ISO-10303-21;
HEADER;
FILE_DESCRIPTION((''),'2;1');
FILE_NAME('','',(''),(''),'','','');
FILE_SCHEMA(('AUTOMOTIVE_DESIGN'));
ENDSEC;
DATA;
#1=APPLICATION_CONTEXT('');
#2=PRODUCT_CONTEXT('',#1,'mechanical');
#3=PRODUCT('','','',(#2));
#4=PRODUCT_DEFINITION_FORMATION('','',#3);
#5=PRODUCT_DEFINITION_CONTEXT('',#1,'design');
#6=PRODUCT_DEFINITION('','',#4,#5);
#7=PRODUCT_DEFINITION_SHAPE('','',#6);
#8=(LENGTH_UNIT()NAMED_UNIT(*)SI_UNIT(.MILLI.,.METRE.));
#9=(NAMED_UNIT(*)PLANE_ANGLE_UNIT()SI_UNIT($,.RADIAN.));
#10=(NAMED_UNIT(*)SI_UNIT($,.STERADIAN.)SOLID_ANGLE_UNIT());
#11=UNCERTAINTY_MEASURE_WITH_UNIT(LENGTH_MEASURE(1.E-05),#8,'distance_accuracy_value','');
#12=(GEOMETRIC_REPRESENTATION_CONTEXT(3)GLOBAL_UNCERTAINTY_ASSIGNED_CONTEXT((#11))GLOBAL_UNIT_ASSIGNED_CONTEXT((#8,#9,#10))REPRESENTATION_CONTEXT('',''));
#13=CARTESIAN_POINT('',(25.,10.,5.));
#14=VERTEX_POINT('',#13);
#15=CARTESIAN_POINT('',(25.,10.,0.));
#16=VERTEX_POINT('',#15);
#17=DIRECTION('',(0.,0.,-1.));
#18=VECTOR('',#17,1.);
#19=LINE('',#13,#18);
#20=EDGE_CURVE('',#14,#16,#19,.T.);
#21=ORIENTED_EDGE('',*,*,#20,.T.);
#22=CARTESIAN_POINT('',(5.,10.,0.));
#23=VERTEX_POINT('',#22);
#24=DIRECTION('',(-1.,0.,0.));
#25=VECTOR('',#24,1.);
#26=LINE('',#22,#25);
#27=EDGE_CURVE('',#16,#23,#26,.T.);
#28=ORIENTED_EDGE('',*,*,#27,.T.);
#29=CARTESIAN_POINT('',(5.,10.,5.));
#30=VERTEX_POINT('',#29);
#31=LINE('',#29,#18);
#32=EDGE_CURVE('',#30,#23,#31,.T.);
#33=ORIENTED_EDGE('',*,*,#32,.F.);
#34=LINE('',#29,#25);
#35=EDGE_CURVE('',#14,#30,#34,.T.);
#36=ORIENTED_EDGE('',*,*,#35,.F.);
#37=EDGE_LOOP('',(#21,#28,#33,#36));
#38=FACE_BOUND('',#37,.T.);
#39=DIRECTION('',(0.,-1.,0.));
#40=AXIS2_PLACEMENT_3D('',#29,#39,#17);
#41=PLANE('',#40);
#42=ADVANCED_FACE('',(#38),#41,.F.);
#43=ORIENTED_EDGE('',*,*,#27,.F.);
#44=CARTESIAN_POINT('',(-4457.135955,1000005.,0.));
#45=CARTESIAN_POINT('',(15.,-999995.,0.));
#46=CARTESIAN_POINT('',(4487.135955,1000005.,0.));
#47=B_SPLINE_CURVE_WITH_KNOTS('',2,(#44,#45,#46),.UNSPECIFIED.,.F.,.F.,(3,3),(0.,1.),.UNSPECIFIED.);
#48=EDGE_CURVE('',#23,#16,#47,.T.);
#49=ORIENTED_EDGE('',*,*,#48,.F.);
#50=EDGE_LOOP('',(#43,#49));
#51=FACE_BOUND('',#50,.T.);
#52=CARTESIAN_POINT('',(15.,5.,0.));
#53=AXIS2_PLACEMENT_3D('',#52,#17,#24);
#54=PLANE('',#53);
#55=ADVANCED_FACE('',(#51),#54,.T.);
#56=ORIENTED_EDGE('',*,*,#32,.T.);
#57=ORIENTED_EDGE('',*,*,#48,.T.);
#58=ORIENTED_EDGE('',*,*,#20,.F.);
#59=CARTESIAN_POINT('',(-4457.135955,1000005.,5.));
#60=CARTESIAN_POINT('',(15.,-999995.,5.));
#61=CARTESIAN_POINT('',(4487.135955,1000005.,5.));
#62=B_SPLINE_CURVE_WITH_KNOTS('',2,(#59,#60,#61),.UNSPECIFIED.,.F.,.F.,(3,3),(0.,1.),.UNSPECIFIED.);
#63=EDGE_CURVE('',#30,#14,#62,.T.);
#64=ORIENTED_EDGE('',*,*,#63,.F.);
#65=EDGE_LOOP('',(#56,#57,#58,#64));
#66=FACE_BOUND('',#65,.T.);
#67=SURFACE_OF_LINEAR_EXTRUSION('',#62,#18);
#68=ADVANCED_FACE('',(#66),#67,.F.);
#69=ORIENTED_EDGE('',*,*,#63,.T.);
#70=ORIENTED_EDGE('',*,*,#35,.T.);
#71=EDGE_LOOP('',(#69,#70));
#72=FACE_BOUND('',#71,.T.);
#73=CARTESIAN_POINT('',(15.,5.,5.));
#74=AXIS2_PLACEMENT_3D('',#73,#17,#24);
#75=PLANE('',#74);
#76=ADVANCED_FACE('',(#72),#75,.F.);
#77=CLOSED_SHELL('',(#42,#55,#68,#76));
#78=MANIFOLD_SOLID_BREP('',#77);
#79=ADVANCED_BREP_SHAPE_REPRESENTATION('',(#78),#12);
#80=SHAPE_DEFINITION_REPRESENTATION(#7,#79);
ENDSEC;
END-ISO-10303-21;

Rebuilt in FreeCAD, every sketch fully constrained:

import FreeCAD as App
import Part
import Sketcher
from FreeCAD import Vector

doc = App.newDocument("Part")
body = doc.addObject("PartDesign::Body", "Body")

sketch1 = body.newObject("Sketcher::SketchObject", "Sketch")
sketch1.AttachmentSupport = (doc.getObject("XY_Plane"), [""])
sketch1.MapMode = "FlatFace"
sketch1.addGeometry(Part.LineSegment(Vector(25, 10, 0), Vector(5, 10, 0)), False)
sketch1.addGeometry(Part.BSplineCurve([Vector(5, 10, 0), Vector(15, 0, 0), Vector(25, 10, 0)], [3, 3], [0, 1], False, 2, [1, 1, 1], False), False)
sketch1.addConstraint(Sketcher.Constraint("Block", 1))
sketch1.addConstraint(Sketcher.Constraint("Coincident", 0, 1, 1, 2))
sketch1.addConstraint(Sketcher.Constraint("Coincident", 1, 1, 0, 2))
pad1 = body.newObject("PartDesign::Pad", "Pad")
pad1.Profile = sketch1
pad1.Length = 5

doc.recompute()
